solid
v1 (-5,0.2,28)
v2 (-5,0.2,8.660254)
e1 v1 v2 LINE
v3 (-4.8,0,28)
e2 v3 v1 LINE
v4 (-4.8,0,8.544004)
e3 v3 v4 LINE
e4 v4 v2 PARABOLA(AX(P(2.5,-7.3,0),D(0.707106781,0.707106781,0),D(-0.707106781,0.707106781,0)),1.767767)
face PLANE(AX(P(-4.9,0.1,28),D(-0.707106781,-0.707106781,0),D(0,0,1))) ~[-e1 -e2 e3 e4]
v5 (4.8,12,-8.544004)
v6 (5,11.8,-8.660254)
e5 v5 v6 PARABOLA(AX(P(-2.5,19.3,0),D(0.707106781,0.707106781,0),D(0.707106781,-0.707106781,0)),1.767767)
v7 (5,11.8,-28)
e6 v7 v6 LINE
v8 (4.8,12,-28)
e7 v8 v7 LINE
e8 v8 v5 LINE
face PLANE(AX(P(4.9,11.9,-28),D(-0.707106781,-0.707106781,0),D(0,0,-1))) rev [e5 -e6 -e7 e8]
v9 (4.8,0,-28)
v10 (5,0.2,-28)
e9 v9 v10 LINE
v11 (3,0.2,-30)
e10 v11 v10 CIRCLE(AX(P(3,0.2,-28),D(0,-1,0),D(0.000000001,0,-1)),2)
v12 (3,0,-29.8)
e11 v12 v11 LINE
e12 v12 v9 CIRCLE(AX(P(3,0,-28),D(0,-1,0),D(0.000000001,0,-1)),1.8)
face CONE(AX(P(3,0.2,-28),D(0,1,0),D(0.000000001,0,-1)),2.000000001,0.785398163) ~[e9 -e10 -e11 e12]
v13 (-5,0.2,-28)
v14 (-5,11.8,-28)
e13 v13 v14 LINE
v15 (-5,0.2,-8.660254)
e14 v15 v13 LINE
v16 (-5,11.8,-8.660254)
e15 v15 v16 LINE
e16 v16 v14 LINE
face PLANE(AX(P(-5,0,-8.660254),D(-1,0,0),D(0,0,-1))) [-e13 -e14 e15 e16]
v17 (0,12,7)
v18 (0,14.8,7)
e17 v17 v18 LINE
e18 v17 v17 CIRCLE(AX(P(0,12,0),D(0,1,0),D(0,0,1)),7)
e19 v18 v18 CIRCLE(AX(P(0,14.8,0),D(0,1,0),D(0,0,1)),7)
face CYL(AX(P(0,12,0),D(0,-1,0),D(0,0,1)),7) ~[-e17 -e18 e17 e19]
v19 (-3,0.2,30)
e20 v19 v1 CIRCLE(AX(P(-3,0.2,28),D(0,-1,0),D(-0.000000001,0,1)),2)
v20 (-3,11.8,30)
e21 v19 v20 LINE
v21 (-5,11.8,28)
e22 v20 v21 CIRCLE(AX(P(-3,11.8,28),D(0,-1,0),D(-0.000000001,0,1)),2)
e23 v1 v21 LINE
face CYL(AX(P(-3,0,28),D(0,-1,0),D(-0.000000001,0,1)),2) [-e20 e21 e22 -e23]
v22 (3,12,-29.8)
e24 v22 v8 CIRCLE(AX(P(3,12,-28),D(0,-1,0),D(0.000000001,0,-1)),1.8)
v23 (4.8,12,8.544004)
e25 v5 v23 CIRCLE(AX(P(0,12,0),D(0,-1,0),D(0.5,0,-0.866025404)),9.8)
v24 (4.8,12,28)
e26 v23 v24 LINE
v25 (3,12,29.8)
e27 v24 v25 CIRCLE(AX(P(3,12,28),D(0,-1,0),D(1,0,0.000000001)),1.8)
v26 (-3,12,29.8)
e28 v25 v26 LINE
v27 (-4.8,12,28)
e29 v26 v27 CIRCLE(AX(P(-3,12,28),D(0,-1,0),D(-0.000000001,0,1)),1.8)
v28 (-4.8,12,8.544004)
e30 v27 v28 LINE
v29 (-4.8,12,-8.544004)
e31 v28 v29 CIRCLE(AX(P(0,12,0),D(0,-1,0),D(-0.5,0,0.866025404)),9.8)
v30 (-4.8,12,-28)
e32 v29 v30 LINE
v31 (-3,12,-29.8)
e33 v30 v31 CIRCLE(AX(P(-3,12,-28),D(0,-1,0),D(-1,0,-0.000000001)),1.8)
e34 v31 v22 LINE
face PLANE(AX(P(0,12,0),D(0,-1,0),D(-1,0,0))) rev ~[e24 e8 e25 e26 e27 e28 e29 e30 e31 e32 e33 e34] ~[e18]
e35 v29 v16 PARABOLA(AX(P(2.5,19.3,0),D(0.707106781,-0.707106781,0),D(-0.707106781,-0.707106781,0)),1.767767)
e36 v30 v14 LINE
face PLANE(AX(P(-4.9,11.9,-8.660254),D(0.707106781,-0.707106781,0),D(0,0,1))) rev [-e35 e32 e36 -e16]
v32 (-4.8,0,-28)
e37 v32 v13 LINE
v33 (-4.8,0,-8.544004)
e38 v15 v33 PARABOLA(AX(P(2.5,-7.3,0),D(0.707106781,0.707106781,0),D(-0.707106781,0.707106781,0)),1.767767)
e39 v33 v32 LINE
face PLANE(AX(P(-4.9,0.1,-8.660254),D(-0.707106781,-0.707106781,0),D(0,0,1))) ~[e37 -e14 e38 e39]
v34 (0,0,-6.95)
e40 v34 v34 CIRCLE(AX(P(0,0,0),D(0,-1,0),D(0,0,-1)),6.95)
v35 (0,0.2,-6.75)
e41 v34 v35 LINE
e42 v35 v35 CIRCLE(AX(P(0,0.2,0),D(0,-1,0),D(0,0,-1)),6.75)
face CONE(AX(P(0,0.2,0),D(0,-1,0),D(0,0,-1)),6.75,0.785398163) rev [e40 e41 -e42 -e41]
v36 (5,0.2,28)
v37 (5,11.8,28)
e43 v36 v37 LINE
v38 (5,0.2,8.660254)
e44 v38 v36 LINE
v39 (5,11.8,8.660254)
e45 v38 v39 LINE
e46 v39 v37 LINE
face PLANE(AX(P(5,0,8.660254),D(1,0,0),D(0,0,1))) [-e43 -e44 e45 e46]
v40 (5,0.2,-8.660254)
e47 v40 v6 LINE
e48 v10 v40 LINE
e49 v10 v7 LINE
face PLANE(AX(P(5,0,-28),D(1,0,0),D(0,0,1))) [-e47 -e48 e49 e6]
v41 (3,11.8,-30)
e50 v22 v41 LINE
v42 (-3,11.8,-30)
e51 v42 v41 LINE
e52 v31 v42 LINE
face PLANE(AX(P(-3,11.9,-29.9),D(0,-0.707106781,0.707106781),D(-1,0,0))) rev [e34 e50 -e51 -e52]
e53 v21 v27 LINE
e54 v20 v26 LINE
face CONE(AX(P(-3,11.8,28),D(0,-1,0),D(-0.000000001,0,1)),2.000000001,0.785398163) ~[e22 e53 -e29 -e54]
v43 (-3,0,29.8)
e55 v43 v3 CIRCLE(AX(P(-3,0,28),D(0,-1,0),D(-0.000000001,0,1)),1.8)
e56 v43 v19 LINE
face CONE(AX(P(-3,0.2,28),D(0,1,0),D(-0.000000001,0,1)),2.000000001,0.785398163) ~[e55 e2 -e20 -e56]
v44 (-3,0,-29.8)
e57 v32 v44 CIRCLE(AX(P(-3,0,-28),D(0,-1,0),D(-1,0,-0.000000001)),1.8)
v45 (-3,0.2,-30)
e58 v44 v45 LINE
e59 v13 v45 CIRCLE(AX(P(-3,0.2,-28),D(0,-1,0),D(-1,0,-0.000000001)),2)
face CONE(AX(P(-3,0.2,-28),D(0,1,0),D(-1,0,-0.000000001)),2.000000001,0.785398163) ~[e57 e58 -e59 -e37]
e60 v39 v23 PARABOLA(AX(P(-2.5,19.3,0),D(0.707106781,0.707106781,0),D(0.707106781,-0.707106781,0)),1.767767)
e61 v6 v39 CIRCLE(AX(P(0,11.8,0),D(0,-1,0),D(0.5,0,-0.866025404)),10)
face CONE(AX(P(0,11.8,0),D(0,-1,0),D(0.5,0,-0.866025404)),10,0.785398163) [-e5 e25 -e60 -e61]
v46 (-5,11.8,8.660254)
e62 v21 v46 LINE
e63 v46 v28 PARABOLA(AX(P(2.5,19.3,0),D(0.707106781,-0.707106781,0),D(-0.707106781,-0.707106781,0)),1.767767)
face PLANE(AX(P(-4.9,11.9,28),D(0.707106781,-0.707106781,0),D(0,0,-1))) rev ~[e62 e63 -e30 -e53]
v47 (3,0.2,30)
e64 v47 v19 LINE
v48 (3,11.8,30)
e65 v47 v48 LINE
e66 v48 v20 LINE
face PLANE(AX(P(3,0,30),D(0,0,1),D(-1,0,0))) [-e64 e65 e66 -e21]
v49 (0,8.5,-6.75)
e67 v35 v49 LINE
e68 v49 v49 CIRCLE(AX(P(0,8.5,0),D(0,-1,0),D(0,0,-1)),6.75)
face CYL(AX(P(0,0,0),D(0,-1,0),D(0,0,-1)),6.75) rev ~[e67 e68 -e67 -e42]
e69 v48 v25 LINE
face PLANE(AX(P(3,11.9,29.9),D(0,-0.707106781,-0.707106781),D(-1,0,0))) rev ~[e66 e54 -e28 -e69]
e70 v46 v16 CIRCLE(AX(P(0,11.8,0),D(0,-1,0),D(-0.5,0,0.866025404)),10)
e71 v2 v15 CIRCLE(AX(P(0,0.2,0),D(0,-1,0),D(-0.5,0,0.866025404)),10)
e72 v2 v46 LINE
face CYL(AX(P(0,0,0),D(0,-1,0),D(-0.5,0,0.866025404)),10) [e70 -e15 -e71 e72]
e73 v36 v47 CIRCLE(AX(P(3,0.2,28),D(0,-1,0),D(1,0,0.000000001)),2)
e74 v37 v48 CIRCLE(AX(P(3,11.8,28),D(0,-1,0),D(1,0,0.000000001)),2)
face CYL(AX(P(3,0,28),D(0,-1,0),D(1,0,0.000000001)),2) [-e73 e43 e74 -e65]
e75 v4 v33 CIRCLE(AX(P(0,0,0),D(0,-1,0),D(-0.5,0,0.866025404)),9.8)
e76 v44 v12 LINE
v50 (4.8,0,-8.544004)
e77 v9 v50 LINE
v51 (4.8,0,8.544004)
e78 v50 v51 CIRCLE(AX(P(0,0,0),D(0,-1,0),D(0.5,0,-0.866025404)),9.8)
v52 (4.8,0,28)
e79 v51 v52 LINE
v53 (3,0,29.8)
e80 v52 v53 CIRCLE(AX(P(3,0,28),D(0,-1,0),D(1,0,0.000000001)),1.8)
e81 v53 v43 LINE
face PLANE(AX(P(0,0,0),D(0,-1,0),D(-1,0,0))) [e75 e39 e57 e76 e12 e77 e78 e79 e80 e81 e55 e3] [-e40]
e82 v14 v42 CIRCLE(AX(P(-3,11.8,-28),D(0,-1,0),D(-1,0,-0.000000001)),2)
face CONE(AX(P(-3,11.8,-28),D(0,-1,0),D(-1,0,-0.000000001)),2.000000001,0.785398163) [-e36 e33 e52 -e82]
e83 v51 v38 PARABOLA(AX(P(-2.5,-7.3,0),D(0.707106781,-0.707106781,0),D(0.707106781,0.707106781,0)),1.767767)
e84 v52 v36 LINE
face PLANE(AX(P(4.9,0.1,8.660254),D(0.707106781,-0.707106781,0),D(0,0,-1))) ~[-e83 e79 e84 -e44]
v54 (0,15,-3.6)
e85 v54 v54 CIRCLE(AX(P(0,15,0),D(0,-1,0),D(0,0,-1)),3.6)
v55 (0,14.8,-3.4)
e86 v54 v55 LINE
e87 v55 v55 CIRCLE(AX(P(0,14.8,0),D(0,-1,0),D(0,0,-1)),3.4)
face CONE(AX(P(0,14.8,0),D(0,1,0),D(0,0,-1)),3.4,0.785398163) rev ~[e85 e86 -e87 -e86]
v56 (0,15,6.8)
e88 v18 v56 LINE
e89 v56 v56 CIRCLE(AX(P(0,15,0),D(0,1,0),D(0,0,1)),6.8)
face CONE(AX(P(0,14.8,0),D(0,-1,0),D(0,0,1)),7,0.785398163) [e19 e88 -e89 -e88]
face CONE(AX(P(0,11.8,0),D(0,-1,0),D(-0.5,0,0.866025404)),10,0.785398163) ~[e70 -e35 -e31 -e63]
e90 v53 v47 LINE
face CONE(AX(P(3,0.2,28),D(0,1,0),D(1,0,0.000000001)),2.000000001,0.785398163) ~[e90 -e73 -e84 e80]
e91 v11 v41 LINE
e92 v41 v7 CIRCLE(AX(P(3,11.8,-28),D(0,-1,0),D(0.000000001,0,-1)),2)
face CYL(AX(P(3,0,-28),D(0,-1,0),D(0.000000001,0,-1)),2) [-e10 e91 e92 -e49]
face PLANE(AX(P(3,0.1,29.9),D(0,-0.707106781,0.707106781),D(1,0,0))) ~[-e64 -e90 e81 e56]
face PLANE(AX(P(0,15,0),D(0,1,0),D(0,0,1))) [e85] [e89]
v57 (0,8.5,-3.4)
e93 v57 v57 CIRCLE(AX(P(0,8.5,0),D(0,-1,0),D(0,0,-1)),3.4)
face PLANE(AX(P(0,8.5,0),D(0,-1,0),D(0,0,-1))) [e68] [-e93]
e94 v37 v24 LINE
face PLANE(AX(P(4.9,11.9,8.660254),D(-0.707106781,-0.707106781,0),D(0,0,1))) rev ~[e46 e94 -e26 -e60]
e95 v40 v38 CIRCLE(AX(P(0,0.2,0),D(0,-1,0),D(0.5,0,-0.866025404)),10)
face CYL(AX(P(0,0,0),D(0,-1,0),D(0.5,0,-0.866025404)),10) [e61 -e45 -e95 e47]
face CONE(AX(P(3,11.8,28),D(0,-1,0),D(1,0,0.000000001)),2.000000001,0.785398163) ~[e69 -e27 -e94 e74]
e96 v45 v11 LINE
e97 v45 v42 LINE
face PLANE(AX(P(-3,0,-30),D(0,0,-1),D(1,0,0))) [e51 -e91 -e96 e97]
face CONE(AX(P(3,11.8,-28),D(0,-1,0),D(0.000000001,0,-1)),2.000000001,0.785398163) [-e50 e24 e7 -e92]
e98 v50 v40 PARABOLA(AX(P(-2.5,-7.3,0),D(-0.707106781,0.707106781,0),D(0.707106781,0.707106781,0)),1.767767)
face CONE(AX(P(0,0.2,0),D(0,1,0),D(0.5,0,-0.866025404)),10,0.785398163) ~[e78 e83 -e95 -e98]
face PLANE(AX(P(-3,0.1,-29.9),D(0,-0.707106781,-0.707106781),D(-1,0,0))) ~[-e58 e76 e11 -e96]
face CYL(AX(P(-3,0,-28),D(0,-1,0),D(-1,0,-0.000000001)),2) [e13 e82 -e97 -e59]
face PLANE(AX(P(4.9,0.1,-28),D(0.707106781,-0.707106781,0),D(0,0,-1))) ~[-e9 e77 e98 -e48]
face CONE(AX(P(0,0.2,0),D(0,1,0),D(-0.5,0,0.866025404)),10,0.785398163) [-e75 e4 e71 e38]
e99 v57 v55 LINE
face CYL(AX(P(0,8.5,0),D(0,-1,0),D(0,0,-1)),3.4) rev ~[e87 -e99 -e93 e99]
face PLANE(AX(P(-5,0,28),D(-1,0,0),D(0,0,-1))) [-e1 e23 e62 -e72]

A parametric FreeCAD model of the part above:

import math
import FreeCAD as App
import Part
import Sketcher
from FreeCAD import Vector
Q = App.Units.Quantity


def edges_at(feature, points):
    """Names of the edges that pass closest to the given points."""
    edges = feature.Shape.Edges
    near = lambda p: min(range(len(edges)), key=lambda i: edges[i].distToShape(Part.Vertex(*p))[0])
    return sorted({f"Edge{near(p) + 1}" for p in points})

doc = App.newDocument("Part")
body = doc.addObject("PartDesign::Body", "Body")

# Sketch on XZ plane
sketch1 = body.newObject("Sketcher::SketchObject", "Sketch")
sketch1.AttachmentSupport = (doc.getObject("XZ_Plane"), [""])
sketch1.MapMode = "FlatFace"
sketch1.addGeometry([
    Part.LineSegment(Vector(-5, 8.7, 0), Vector(-5, 28, 0)),  # 0
    Part.ArcOfCircle(Part.Circle(Vector(-3, 28, 0), Vector(0, 0, 1), 2), math.radians(90), math.radians(180)),  # 1
    Part.LineSegment(Vector(-3, 30, 0), Vector(3, 30, 0)),  # 2
    Part.ArcOfCircle(Part.Circle(Vector(3, 28, 0), Vector(0, 0, 1), 2), math.radians(0), math.radians(90)),  # 3
    Part.LineSegment(Vector(5, 28, 0), Vector(5, 8.7, 0)),  # 4
    Part.ArcOfCircle(Part.Circle(Vector(0, 0, 0), Vector(0, 0, 1), 10), math.radians(-60), math.radians(60)),  # 5
    Part.LineSegment(Vector(5, -8.7, 0), Vector(5, -28, 0)),  # 6
    Part.ArcOfCircle(Part.Circle(Vector(3, -28, 0), Vector(0, 0, 1), 2), math.radians(-90), math.radians(0)),  # 7
    Part.LineSegment(Vector(3, -30, 0), Vector(-3, -30, 0)),  # 8
    Part.ArcOfCircle(Part.Circle(Vector(-3, -28, 0), Vector(0, 0, 1), 2), math.radians(-180), math.radians(-90)),  # 9
    Part.LineSegment(Vector(-5, -28, 0), Vector(-5, -8.7, 0)),  # 10
    Part.ArcOfCircle(Part.Circle(Vector(0, 0, 0), Vector(0, 0, 1), 10), math.radians(120), math.radians(240)),  # 11
], False)
sketch1.addConstraint([
    Sketcher.Constraint("Tangent", 0, 2, 1, 2),
    Sketcher.Constraint("Tangent", 1, 1, 2, 1),
    Sketcher.Constraint("Tangent", 2, 2, 3, 2),
    Sketcher.Constraint("Tangent", 3, 1, 4, 1),
    Sketcher.Constraint("Coincident", 4, 2, 5, 2),
    Sketcher.Constraint("Coincident", 5, 1, 6, 1),
    Sketcher.Constraint("Tangent", 6, 2, 7, 2),
    Sketcher.Constraint("Tangent", 7, 1, 8, 1),
    Sketcher.Constraint("Tangent", 8, 2, 9, 2),
    Sketcher.Constraint("Tangent", 9, 1, 10, 1),
    Sketcher.Constraint("Coincident", 10, 2, 11, 2),
    Sketcher.Constraint("Coincident", 11, 1, 0, 1),
    Sketcher.Constraint("Vertical", 0),
    Sketcher.Constraint("Horizontal", 2),
    Sketcher.Constraint("Vertical", 4),
    Sketcher.Constraint("Vertical", 6),
    Sketcher.Constraint("Horizontal", 8),
    Sketcher.Constraint("Vertical", 10),
    Sketcher.Constraint("Coincident", 5, 3, -1, 1),
    Sketcher.Constraint("Coincident", 11, 3, -1, 1),
    Sketcher.Constraint("Equal", 1, 3),
    Sketcher.Constraint("Equal", 3, 7),
    Sketcher.Constraint("Equal", 7, 9),
    Sketcher.Constraint("Equal", 5, 11),
    Sketcher.Constraint("Symmetric", 1, 3, 7, 3, -1, 1),
    Sketcher.Constraint("Horizontal", 5, 1, 10, 2),
    Sketcher.Constraint("Horizontal", 4, 2, 11, 1),
    Sketcher.Constraint("Radius", 1, Q("2 mm")),
    Sketcher.Constraint("Radius", 5, Q("10 mm")),
    Sketcher.Constraint("DistanceX", 2, 1, 2, 2, Q("6 mm")),
    Sketcher.Constraint("DistanceY", -1, 1, 1, 3, Q("28 mm")),
])
pad1 = body.newObject("PartDesign::Pad", "Pad")
pad1.Profile = sketch1
pad1.Length = 12
pad1.Reversed = True

# Sketch on XZ plane
sketch2 = body.newObject("Sketcher::SketchObject", "Sketch001")
sketch2.AttachmentSupport = (doc.getObject("XZ_Plane"), [""])
sketch2.MapMode = "FlatFace"
sketch2.addGeometry(Part.Circle(Vector(0, 0, 0), Vector(0, 0, 1), 7), False)
sketch2.addConstraint([
    Sketcher.Constraint("Coincident", 0, 3, -1, 1),
    Sketcher.Constraint("Diameter", 0, Q("13.5 mm")),
])
pocket1 = body.newObject("PartDesign::Pocket", "Pocket")
pocket1.Profile = sketch2
pocket1.Length = 8.5

# Sketch on XZ plane
sketch3 = body.newObject("Sketcher::SketchObject", "Sketch002")
sketch3.AttachmentSupport = (doc.getObject("XZ_Plane"), [""])
sketch3.MapMode = "FlatFace"
sketch3.AttachmentOffset = App.Placement(Vector(0, 0, -12), App.Rotation())
sketch3.addGeometry(Part.Circle(Vector(0, 0, 0), Vector(0, 0, 1), 7), False)
sketch3.addConstraint([
    Sketcher.Constraint("Coincident", 0, 3, -1, 1),
    Sketcher.Constraint("Diameter", 0, Q("14 mm")),
])
pad2 = body.newObject("PartDesign::Pad", "Pad001")
pad2.Profile = sketch3
pad2.Length = 3
pad2.Reversed = True

# Sketch on XZ plane
sketch4 = body.newObject("Sketcher::SketchObject", "Sketch003")
sketch4.AttachmentSupport = (doc.getObject("XZ_Plane"), [""])
sketch4.MapMode = "FlatFace"
sketch4.AttachmentOffset = App.Placement(Vector(0, 0, -8.5), App.Rotation())
sketch4.addGeometry(Part.Circle(Vector(0, 0, 0), Vector(0, 0, 1), 3.4), False)
sketch4.addConstraint([
    Sketcher.Constraint("Coincident", 0, 3, -1, 1),
    Sketcher.Constraint("Diameter", 0, Q("6.8 mm")),
])
pocket2 = body.newObject("PartDesign::Pocket", "Pocket001")
pocket2.Profile = sketch4
pocket2.Type = "ThroughAll"
doc.recompute()

chamfer = body.newObject("PartDesign::Chamfer", "Chamfer")
chamfer.Base = (pocket2, edges_at(pocket2, [
    (5, 0, 18.33),
    (4.414, 0, 29.414),
    (4.414, 12, -29.414),
    (0, 0, 30),
    (-4.414, 0, 29.414),
    (-5, 0, 18.33),
    (-10, 0, 0),
    (-5, 0, -18.33),
    (-4.414, 0, -29.414),
    (0, 0, -30),
    (4.414, 0, -29.414),
    (5, 0, -18.33),
    (10, 0, 0),
    (0, 12, -30),
    (-4.414, 12, -29.414),
    (-5, 12, -18.33),
    (-10, 12, 0),
    (-5, 12, 18.33),
    (-4.414, 12, 29.414),
    (0, 0, 6.75),
    (0, 12, 30),
    (0, 15, -7),
    (4.414, 12, 29.414),
    (0, 15, 3.4),
    (5, 12, 18.33),
    (10, 12, 0),
    (5, 12, -18.33),
]))
chamfer.Size = 0.2

doc.recompute()
